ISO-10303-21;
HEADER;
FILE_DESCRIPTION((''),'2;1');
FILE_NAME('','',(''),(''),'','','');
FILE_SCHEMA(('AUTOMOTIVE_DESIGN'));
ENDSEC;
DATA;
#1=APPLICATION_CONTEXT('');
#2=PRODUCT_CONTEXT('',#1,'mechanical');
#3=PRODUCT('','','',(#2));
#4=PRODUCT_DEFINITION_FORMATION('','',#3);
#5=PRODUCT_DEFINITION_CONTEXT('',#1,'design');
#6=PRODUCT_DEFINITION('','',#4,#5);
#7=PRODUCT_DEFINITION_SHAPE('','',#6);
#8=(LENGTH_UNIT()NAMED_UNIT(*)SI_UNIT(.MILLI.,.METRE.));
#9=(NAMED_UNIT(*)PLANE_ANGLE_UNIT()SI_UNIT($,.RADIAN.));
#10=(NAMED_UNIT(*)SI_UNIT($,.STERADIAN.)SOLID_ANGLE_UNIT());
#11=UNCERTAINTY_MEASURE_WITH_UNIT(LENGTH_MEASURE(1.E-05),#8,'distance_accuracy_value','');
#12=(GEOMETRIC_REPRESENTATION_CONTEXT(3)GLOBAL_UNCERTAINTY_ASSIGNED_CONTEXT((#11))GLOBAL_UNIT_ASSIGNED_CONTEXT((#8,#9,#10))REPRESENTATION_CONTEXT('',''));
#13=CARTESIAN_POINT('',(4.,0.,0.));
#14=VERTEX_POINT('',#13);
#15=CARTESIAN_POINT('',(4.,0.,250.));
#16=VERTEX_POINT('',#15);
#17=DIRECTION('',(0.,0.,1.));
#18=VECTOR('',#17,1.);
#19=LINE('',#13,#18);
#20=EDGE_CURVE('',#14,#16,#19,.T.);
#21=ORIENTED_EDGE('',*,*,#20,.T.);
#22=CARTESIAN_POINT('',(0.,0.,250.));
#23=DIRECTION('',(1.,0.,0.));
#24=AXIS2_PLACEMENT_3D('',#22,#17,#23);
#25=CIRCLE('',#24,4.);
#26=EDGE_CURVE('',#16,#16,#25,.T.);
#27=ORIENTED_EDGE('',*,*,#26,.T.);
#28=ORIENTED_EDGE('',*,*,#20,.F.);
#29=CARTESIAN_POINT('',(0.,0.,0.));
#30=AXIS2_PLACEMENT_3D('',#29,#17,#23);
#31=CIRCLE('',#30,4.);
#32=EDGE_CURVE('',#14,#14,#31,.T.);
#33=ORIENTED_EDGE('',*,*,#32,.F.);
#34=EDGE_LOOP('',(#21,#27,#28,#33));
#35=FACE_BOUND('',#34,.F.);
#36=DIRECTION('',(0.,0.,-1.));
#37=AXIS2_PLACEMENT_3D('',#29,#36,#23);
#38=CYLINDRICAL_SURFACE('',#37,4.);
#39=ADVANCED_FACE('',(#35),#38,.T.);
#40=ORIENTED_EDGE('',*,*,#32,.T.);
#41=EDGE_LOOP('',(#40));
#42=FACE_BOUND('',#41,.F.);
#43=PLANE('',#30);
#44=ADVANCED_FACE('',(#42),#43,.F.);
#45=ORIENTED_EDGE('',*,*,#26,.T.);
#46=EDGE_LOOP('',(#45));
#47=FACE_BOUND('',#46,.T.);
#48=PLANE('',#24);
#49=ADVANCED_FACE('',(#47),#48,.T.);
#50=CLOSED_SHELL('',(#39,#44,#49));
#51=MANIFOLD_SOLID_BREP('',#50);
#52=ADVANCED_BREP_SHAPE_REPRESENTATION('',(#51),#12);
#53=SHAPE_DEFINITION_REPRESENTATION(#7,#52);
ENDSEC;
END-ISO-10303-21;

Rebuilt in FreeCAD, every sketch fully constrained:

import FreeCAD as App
import Part
import Sketcher
from FreeCAD import Vector

doc = App.newDocument("Part")
body = doc.addObject("PartDesign::Body", "Body")

# Sketch on XY plane
sketch1 = body.newObject("Sketcher::SketchObject", "Sketch")
sketch1.AttachmentSupport = (doc.getObject("XY_Plane"), [""])
sketch1.MapMode = "FlatFace"
sketch1.addGeometry(Part.Circle(Vector(0, 0, 0), Vector(0, 0, 1), 4), False)
sketch1.addConstraint([
    Sketcher.Constraint("Coincident", 0, 3, -1, 1),
    Sketcher.Constraint("Diameter", 0, 8.0),
])
pad1 = body.newObject("PartDesign::Pad", "Pad")
pad1.Profile = sketch1
pad1.Length = 250

doc.recompute()
